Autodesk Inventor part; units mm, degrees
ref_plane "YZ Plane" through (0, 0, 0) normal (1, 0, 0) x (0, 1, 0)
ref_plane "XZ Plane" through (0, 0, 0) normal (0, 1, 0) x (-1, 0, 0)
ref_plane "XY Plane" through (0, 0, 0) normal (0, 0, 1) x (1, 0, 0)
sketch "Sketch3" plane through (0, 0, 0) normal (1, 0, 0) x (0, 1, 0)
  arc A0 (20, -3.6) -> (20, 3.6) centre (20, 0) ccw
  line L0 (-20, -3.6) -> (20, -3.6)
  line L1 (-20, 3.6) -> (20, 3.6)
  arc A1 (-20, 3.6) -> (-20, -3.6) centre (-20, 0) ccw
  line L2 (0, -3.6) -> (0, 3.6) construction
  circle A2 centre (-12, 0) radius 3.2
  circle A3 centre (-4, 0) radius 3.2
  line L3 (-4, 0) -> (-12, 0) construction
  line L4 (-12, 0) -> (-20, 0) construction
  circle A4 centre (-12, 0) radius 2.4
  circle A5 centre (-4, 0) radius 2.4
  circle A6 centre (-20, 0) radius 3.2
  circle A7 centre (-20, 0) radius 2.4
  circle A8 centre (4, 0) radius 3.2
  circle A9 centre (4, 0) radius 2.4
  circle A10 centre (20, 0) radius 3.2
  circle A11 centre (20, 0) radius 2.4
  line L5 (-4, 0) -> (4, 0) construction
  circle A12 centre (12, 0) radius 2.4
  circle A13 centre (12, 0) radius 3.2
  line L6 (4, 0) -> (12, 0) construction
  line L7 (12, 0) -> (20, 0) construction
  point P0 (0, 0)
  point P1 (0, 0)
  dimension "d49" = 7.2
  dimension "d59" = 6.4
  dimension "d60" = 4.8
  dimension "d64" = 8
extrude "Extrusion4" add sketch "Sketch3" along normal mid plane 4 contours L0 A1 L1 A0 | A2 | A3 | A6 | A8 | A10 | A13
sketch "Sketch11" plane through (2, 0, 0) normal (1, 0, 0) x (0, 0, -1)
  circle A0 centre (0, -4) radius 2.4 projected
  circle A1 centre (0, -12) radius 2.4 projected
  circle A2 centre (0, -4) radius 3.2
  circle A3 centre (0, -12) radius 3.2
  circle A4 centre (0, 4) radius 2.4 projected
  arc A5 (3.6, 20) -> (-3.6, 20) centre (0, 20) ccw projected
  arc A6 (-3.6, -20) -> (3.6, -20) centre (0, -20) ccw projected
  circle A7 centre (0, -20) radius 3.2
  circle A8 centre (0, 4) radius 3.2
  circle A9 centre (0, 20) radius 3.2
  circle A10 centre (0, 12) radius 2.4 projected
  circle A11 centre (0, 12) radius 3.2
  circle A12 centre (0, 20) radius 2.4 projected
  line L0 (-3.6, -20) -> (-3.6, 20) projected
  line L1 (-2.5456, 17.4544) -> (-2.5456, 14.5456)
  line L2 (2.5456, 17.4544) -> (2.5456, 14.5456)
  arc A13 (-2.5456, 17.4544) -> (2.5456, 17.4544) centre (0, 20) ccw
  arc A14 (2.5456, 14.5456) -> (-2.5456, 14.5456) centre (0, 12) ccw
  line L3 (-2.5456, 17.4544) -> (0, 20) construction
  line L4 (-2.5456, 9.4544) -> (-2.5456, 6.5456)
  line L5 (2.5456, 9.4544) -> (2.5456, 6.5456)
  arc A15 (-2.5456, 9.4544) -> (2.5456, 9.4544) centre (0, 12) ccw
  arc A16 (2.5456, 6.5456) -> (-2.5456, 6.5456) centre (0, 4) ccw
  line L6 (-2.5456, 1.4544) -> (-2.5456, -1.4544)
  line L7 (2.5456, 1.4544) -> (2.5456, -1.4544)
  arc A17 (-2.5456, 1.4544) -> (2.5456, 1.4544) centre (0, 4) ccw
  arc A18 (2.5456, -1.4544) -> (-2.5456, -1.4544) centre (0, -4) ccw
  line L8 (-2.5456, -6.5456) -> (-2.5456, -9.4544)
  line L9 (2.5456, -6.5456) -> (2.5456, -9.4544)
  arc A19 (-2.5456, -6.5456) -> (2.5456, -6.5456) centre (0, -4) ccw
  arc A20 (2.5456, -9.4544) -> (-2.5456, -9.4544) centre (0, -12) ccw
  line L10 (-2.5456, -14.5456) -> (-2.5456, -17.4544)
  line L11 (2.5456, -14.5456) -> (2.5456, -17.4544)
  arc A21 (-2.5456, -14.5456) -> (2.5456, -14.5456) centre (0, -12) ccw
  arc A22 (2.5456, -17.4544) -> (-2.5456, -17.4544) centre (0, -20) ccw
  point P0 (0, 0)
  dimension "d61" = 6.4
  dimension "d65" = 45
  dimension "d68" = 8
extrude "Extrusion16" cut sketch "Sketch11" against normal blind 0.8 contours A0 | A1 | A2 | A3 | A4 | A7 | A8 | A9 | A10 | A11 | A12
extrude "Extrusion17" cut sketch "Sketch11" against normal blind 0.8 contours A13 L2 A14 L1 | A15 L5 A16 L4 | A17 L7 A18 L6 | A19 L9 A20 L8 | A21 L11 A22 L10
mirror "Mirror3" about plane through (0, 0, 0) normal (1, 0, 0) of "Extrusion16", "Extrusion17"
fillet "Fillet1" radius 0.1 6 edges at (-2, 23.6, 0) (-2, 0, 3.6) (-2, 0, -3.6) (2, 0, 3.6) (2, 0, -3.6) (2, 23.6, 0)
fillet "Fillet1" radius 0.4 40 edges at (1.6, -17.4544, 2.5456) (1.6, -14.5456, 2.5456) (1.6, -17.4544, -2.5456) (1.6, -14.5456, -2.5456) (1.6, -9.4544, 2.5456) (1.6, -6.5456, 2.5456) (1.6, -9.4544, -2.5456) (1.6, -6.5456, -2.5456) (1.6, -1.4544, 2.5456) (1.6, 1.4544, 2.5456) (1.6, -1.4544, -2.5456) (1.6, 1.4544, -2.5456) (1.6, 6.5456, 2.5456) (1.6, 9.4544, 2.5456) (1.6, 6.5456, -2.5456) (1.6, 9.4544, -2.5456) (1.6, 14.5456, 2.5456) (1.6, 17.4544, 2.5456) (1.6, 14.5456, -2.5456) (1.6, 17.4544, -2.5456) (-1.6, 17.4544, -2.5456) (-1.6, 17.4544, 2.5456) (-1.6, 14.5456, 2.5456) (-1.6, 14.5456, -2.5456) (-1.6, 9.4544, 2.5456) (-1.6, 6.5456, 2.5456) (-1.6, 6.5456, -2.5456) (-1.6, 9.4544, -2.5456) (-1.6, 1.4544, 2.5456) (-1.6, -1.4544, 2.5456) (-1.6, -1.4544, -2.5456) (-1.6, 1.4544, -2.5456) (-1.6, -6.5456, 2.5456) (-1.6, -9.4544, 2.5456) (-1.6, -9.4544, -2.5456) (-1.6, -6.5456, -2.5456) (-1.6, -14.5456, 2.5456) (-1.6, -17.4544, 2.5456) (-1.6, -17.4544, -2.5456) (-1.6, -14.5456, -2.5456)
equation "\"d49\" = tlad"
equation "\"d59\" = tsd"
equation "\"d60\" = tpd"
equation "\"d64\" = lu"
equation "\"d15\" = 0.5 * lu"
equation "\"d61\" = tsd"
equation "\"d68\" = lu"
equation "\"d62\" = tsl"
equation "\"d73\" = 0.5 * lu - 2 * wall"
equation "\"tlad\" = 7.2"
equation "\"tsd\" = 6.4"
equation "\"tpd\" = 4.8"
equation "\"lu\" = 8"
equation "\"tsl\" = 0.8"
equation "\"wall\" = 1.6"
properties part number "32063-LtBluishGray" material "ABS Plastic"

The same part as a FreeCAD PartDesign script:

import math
import FreeCAD as App
import Part
import Sketcher
Q = App.Units.Quantity


def edges_at(feature, points):
    """Names of the edges that pass closest to the given points."""
    edges = feature.Shape.Edges
    near = lambda p: min(range(len(edges)), key=lambda i: edges[i].distToShape(Part.Vertex(*p))[0])
    return sorted({f"Edge{near(p) + 1}" for p in points})

doc = App.newDocument("Part")
body = doc.addObject("PartDesign::Body", "Body")

sketch1 = body.newObject("Sketcher::SketchObject", "Sketch")
sketch1.AttachmentSupport = (doc.getObject("YZ_Plane"), [""])
sketch1.MapMode = "FlatFace"
sketch1.addGeometry([
    Part.LineSegment(App.Vector(-20, -3.6, 0), App.Vector(20, -3.6, 0)),
    Part.ArcOfCircle(Part.Circle(App.Vector(20, 0, 0), App.Vector(0, 0, 1), 3.6), math.radians(-90), math.radians(90)),
    Part.LineSegment(App.Vector(20, 3.6, 0), App.Vector(-20, 3.6, 0)),
    Part.ArcOfCircle(Part.Circle(App.Vector(-20, 0, 0), App.Vector(0, 0, 1), 3.6), math.radians(90), math.radians(270)),
    Part.Circle(App.Vector(-20, 0, 0), App.Vector(0, 0, 1), 2.4),
    Part.Circle(App.Vector(-12, 0, 0), App.Vector(0, 0, 1), 2.4),
    Part.Circle(App.Vector(-4, 0, 0), App.Vector(0, 0, 1), 2.4),
    Part.Circle(App.Vector(4, 0, 0), App.Vector(0, 0, 1), 2.4),
    Part.Circle(App.Vector(12, 0, 0), App.Vector(0, 0, 1), 2.4),
    Part.Circle(App.Vector(20, 0, 0), App.Vector(0, 0, 1), 2.4),
], False)
sketch1.addConstraint([
    Sketcher.Constraint("Tangent", 0, 2, 1, 1),
    Sketcher.Constraint("Tangent", 1, 2, 2, 1),
    Sketcher.Constraint("Tangent", 2, 2, 3, 1),
    Sketcher.Constraint("Tangent", 3, 2, 0, 1),
    Sketcher.Constraint("Horizontal", 0),
    Sketcher.Constraint("Horizontal", 2),
    Sketcher.Constraint("Coincident", 4, 3, 3, 3),
    Sketcher.Constraint("Coincident", 9, 3, 1, 3),
    Sketcher.Constraint("Equal", 4, 5),
    Sketcher.Constraint("Equal", 5, 6),
    Sketcher.Constraint("Equal", 6, 7),
    Sketcher.Constraint("Equal", 7, 8),
    Sketcher.Constraint("Equal", 8, 9),
    Sketcher.Constraint("Symmetric", 1, 3, 3, 3, -1, 1),
    Sketcher.Constraint("Symmetric", 6, 3, 7, 3, -1, 1),
    Sketcher.Constraint("Symmetric", 5, 3, 8, 3, -1, 1),
    Sketcher.Constraint("PointOnObject", 5, 3, -1),
    Sketcher.Constraint("PointOnObject", 6, 3, -1),
    Sketcher.Constraint("Diameter", 4, Q("4.8 mm")),
    Sketcher.Constraint("Radius", 1, Q("3.6 mm")),
    Sketcher.Constraint("DistanceX", 3, 3, 5, 3, Q("8 mm")),
    Sketcher.Constraint("DistanceX", 5, 3, 6, 3, Q("8 mm")),
    Sketcher.Constraint("DistanceX", 6, 3, 7, 3, Q("8 mm")),
])
pad1 = body.newObject("PartDesign::Pad", "Pad")
pad1.Profile = sketch1
pad1.Length = 4
pad1.Midplane = True

sketch2 = body.newObject("Sketcher::SketchObject", "Sketch001")
sketch2.AttachmentSupport = (doc.getObject("YZ_Plane"), [""])
sketch2.MapMode = "FlatFace"
sketch2.AttachmentOffset = App.Placement(App.Vector(0, 0, 2), App.Rotation())
sketch2.addGeometry([
    Part.Circle(App.Vector(-4, 0, 0), App.Vector(0, 0, 1), 3.2),
    Part.Circle(App.Vector(-12, 0, 0), App.Vector(0, 0, 1), 3.2),
    Part.Circle(App.Vector(4, 0, 0), App.Vector(0, 0, 1), 3.2),
    Part.Circle(App.Vector(-20, 0, 0), App.Vector(0, 0, 1), 3.2),
    Part.Circle(App.Vector(20, 0, 0), App.Vector(0, 0, 1), 3.2),
    Part.Circle(App.Vector(12, 0, 0), App.Vector(0, 0, 1), 3.2),
], False)
sketch2.addConstraint([
    Sketcher.Constraint("Equal", 0, 1),
    Sketcher.Constraint("Equal", 1, 2),
    Sketcher.Constraint("Equal", 2, 3),
    Sketcher.Constraint("Equal", 3, 4),
    Sketcher.Constraint("Equal", 4, 5),
    Sketcher.Constraint("Symmetric", 0, 3, 2, 3, -1, 1),
    Sketcher.Constraint("Symmetric", 3, 3, 4, 3, -1, 1),
    Sketcher.Constraint("Symmetric", 1, 3, 5, 3, -1, 1),
    Sketcher.Constraint("PointOnObject", 0, 3, -1),
    Sketcher.Constraint("PointOnObject", 1, 3, -1),
    Sketcher.Constraint("PointOnObject", 3, 3, -1),
    Sketcher.Constraint("Diameter", 0, Q("6.4 mm")),
    Sketcher.Constraint("DistanceX", 1, 3, 0, 3, Q("8 mm")),
    Sketcher.Constraint("DistanceX", 0, 3, 2, 3, Q("8 mm")),
    Sketcher.Constraint("DistanceX", 3, 3, 1, 3, Q("8 mm")),
])
pocket1 = body.newObject("PartDesign::Pocket", "Pocket")
pocket1.Profile = sketch2
pocket1.Length = 0.8

sketch3 = body.newObject("Sketcher::SketchObject", "Sketch002")
sketch3.AttachmentSupport = (doc.getObject("YZ_Plane"), [""])
sketch3.MapMode = "FlatFace"
sketch3.AttachmentOffset = App.Placement(App.Vector(0, 0, 2), App.Rotation())
sketch3.addGeometry([
    Part.ArcOfCircle(Part.Circle(App.Vector(20, 0, 0), App.Vector(0, 0, 1), 3.6), math.radians(135), math.radians(225)),
    Part.LineSegment(App.Vector(17.5, 2.5, 0), App.Vector(14.5, 2.5, 0)),
    Part.ArcOfCircle(Part.Circle(App.Vector(12, 0, 0), App.Vector(0, 0, 1), 3.6), math.radians(-45), math.radians(45)),
    Part.LineSegment(App.Vector(14.5, -2.5, 0), App.Vector(17.5, -2.5, 0)),
    Part.ArcOfCircle(Part.Circle(App.Vector(12, 0, 0), App.Vector(0, 0, 1), 3.6), math.radians(135), math.radians(225)),
    Part.LineSegment(App.Vector(9.5, 2.5, 0), App.Vector(6.5, 2.5, 0)),
    Part.ArcOfCircle(Part.Circle(App.Vector(4, 0, 0), App.Vector(0, 0, 1), 3.6), math.radians(-45), math.radians(45)),
    Part.LineSegment(App.Vector(6.5, -2.5, 0), App.Vector(9.5, -2.5, 0)),
    Part.ArcOfCircle(Part.Circle(App.Vector(4, 0, 0), App.Vector(0, 0, 1), 3.6), math.radians(135), math.radians(225)),
    Part.LineSegment(App.Vector(1.5, 2.5, 0), App.Vector(-1.5, 2.5, 0)),
    Part.ArcOfCircle(Part.Circle(App.Vector(-4, 0, 0), App.Vector(0, 0, 1), 3.6), math.radians(-45), math.radians(45)),
    Part.LineSegment(App.Vector(-1.5, -2.5, 0), App.Vector(1.5, -2.5, 0)),
    Part.ArcOfCircle(Part.Circle(App.Vector(-4, 0, 0), App.Vector(0, 0, 1), 3.6), math.radians(135), math.radians(225)),
    Part.LineSegment(App.Vector(-6.5, 2.5, 0), App.Vector(-9.5, 2.5, 0)),
    Part.ArcOfCircle(Part.Circle(App.Vector(-12, 0, 0), App.Vector(0, 0, 1), 3.6), math.radians(-45), math.radians(45)),
    Part.LineSegment(App.Vector(-9.5, -2.5, 0), App.Vector(-6.5, -2.5, 0)),
    Part.ArcOfCircle(Part.Circle(App.Vector(-12, 0, 0), App.Vector(0, 0, 1), 3.6), math.radians(135), math.radians(225)),
    Part.LineSegment(App.Vector(-14.5, 2.5, 0), App.Vector(-17.5, 2.5, 0)),
    Part.ArcOfCircle(Part.Circle(App.Vector(-20, 0, 0), App.Vector(0, 0, 1), 3.6), math.radians(-45), math.radians(45)),
    Part.LineSegment(App.Vector(-17.5, -2.5, 0), App.Vector(-14.5, -2.5, 0)),
], False)
sketch3.addConstraint([
    Sketcher.Constraint("Coincident", 0, 1, 1, 1),
    Sketcher.Constraint("Coincident", 1, 2, 2, 2),
    Sketcher.Constraint("Coincident", 2, 1, 3, 1),
    Sketcher.Constraint("Coincident", 3, 2, 0, 2),
    Sketcher.Constraint("Coincident", 4, 1, 5, 1),
    Sketcher.Constraint("Coincident", 5, 2, 6, 2),
    Sketcher.Constraint("Coincident", 6, 1, 7, 1),
    Sketcher.Constraint("Coincident", 7, 2, 4, 2),
    Sketcher.Constraint("Coincident", 8, 1, 9, 1),
    Sketcher.Constraint("Coincident", 9, 2, 10, 2),
    Sketcher.Constraint("Coincident", 10, 1, 11, 1),
    Sketcher.Constraint("Coincident", 11, 2, 8, 2),
    Sketcher.Constraint("Coincident", 12, 1, 13, 1),
    Sketcher.Constraint("Coincident", 13, 2, 14, 2),
    Sketcher.Constraint("Coincident", 14, 1, 15, 1),
    Sketcher.Constraint("Coincident", 15, 2, 12, 2),
    Sketcher.Constraint("Coincident", 16, 1, 17, 1),
    Sketcher.Constraint("Coincident", 17, 2, 18, 2),
    Sketcher.Constraint("Coincident", 18, 1, 19, 1),
    Sketcher.Constraint("Coincident", 19, 2, 16, 2),
    Sketcher.Constraint("Horizontal", 1),
    Sketcher.Constraint("Horizontal", 3),
    Sketcher.Constraint("Horizontal", 5),
    Sketcher.Constraint("Horizontal", 7),
    Sketcher.Constraint("Horizontal", 9),
    Sketcher.Constraint("Horizontal", 11),
    Sketcher.Constraint("Horizontal", 13),
    Sketcher.Constraint("Horizontal", 15),
    Sketcher.Constraint("Horizontal", 17),
    Sketcher.Constraint("Horizontal", 19),
    Sketcher.Constraint("Coincident", 4, 3, 2, 3),
    Sketcher.Constraint("Coincident", 8, 3, 6, 3),
    Sketcher.Constraint("Coincident", 12, 3, 10, 3),
    Sketcher.Constraint("Coincident", 16, 3, 14, 3),
    Sketcher.Constraint("Equal", 0, 2),
    Sketcher.Constraint("Equal", 2, 4),
    Sketcher.Constraint("Equal", 4, 6),
    Sketcher.Constraint("Equal", 6, 8),
    Sketcher.Constraint("Equal", 8, 10),
    Sketcher.Constraint("Equal", 10, 12),
    Sketcher.Constraint("Equal", 12, 14),
    Sketcher.Constraint("Equal", 14, 16),
    Sketcher.Constraint("Equal", 16, 18),
    Sketcher.Constraint("Symmetric", 6, 3, 10, 3, -1, 1),
    Sketcher.Constraint("Symmetric", 2, 3, 14, 3, -1, 1),
    Sketcher.Constraint("Symmetric", 0, 3, 18, 3, -1, 1),
    Sketcher.Constraint("Symmetric", 5, 2, 12, 1, -2),
    Sketcher.Constraint("Symmetric", 7, 2, 14, 1, -2),
    Sketcher.Constraint("Symmetric", 0, 1, 17, 2, -2),
    Sketcher.Constraint("Horizontal", 1, 2, 4, 1),
    Sketcher.Constraint("Horizontal", 3, 2, 6, 1),
    Sketcher.Constraint("Horizontal", 5, 2, 8, 1),
    Sketcher.Constraint("Horizontal", 7, 2, 10, 1),
    Sketcher.Constraint("Horizontal", 15, 2, 18, 1),
    Sketcher.Constraint("Vertical", 1, 2, 2, 1),
    Sketcher.Constraint("Equal", 3, 5),
    Sketcher.Constraint("Equal", 7, 9),
    Sketcher.Constraint("DistanceX", 2, 3, 0, 3, Q("8 mm")),
    Sketcher.Constraint("Radius", 0, Q("3.6 mm")),
    Sketcher.Constraint("DistanceX", 1, 2, 1, 1, Q("2.9088 mm")),
])
pocket2 = body.newObject("PartDesign::Pocket", "Pocket001")
pocket2.Profile = sketch3
pocket2.Length = 0.8
doc.recompute()

mirrored = body.newObject("PartDesign::Mirrored", "Mirrored")
mirrored.Originals = [pocket1, pocket2]
mirrored.MirrorPlane = (doc.getObject("YZ_Plane"), [""])
body.Tip = mirrored
doc.recompute()

fillet = body.newObject("PartDesign::Fillet", "Fillet")
fillet.Base = (mirrored, edges_at(mirrored, [
    (-2, 23.6, 0),
    (-2, 0, 3.6),
    (-2, 0, -3.6),
    (2, 0, 3.6),
    (2, 0, -3.6),
    (2, 23.6, 0),
]))
fillet.Radius = 0.1
doc.recompute()

fillet2 = body.newObject("PartDesign::Fillet", "Fillet001")
fillet2.Base = (fillet, edges_at(fillet, [
    (1.6, -17.454, 2.546),
    (1.6, -14.546, 2.546),
    (1.6, -17.454, -2.546),
    (1.6, -14.546, -2.546),
    (1.6, -9.454, 2.546),
    (1.6, -6.546, 2.546),
    (1.6, -9.454, -2.546),
    (1.6, -6.546, -2.546),
    (1.6, -1.454, 2.546),
    (1.6, 1.454, 2.546),
    (1.6, -1.454, -2.546),
    (1.6, 1.454, -2.546),
    (1.6, 6.546, 2.546),
    (1.6, 9.454, 2.546),
    (1.6, 6.546, -2.546),
    (1.6, 9.454, -2.546),
    (1.6, 14.546, 2.546),
    (1.6, 17.454, 2.546),
    (1.6, 14.546, -2.546),
    (1.6, 17.454, -2.546),
    (-1.6, 17.454, -2.546),
    (-1.6, 17.454, 2.546),
    (-1.6, 14.546, 2.546),
    (-1.6, 14.546, -2.546),
    (-1.6, 9.454, 2.546),
    (-1.6, 6.546, 2.546),
    (-1.6, 6.546, -2.546),
    (-1.6, 9.454, -2.546),
    (-1.6, 1.454, 2.546),
    (-1.6, -1.454, 2.546),
    (-1.6, -1.454, -2.546),
    (-1.6, 1.454, -2.546),
    (-1.6, -6.546, 2.546),
    (-1.6, -9.454, 2.546),
    (-1.6, -9.454, -2.546),
    (-1.6, -6.546, -2.546),
    (-1.6, -14.546, 2.546),
    (-1.6, -17.454, 2.546),
    (-1.6, -17.454, -2.546),
    (-1.6, -14.546, -2.546),
]))
fillet2.Radius = 0.4

doc.recompute()
